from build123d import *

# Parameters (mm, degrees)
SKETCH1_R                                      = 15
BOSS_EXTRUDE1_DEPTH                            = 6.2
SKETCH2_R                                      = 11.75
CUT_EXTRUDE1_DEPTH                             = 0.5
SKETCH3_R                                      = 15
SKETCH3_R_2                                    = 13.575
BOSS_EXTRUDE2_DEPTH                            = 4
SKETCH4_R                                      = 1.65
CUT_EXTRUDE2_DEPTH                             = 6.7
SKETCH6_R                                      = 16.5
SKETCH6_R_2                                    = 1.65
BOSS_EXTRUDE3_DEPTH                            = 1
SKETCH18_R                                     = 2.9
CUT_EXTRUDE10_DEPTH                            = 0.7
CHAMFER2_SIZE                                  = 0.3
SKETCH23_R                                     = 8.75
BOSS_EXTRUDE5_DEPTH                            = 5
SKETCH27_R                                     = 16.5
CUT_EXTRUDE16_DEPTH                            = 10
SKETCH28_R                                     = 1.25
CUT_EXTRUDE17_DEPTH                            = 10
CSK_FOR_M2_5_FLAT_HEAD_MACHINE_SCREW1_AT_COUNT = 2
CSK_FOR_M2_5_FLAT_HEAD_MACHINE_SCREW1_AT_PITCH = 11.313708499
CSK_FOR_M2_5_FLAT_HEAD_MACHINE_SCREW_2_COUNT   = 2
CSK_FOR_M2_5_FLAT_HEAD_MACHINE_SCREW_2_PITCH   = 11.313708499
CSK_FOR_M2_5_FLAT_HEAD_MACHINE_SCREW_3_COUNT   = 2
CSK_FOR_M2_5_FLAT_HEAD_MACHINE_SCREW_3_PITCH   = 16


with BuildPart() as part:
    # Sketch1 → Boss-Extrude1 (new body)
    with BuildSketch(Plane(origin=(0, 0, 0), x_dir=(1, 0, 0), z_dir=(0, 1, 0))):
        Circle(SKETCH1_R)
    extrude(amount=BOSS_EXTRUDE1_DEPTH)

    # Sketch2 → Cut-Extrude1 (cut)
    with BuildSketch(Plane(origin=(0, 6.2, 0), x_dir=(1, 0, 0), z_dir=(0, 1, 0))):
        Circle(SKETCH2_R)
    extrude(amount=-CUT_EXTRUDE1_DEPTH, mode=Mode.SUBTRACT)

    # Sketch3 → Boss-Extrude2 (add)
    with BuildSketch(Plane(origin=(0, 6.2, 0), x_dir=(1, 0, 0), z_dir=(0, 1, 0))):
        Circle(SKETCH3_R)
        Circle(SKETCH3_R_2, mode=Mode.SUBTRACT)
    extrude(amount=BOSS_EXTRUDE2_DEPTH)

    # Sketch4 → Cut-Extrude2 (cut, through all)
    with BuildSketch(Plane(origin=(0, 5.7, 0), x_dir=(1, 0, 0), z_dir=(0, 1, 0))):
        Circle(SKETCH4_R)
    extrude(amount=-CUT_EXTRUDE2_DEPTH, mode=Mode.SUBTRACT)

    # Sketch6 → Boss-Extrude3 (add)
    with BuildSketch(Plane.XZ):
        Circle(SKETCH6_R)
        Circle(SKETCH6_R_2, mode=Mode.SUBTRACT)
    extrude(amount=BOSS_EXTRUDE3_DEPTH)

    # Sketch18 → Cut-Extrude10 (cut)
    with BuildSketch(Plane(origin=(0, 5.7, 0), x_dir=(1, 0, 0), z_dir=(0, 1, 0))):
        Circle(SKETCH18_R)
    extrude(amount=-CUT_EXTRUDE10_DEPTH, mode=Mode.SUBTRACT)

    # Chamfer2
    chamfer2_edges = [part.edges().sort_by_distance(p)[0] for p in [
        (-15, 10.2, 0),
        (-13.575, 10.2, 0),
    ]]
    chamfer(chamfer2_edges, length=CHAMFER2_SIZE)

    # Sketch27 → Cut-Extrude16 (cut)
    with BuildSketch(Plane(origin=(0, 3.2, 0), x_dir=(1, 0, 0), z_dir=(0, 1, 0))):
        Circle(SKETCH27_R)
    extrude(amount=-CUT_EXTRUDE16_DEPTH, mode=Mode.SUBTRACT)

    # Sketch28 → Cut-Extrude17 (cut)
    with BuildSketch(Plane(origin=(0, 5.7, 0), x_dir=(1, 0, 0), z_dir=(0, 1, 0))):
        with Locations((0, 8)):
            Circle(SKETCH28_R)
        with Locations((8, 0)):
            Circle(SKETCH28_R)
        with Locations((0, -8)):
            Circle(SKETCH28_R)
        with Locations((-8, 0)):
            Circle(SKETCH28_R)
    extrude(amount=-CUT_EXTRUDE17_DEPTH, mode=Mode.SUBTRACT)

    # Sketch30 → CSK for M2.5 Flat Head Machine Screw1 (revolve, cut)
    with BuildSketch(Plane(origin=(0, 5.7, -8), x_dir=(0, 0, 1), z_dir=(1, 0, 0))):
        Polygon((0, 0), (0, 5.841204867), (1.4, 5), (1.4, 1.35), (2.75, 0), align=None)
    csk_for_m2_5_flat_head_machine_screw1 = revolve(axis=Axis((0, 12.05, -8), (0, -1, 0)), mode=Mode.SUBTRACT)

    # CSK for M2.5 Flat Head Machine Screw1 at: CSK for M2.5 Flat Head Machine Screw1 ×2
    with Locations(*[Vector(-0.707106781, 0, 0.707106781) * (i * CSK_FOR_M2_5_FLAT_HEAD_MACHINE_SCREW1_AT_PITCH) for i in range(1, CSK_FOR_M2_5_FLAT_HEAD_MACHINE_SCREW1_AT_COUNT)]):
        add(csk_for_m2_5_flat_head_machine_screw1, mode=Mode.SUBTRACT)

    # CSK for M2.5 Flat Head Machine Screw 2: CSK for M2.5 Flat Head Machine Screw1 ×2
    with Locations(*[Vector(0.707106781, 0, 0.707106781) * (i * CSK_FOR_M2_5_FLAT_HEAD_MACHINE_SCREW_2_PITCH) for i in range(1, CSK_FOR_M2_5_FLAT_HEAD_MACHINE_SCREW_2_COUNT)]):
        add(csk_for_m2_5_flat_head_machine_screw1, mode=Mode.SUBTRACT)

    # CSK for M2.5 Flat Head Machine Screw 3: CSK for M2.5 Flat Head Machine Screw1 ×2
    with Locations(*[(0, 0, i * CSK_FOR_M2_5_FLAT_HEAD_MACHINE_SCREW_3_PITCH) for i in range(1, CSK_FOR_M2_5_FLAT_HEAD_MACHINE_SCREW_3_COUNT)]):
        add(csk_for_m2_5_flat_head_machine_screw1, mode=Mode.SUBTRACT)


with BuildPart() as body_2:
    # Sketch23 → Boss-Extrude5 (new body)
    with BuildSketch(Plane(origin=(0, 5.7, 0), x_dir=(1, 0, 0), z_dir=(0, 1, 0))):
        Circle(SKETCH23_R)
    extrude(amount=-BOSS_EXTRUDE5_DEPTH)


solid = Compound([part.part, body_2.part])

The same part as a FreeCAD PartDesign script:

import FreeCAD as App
import Part
import Sketcher

V = App.Vector
Q = App.Units.Quantity


def edges_at(feature, points):
    """Names of the edges that pass closest to the given points."""
    edges = feature.Shape.Edges
    near = lambda p: min(range(len(edges)), key=lambda i: edges[i].distToShape(Part.Vertex(*p))[0])
    return sorted({f"Edge{near(p) + 1}" for p in points})


def add_polygon(sketch, points):
    """Adds a closed chain of lines whose ends are joined by coincident constraints."""
    first, n = sketch.GeometryCount, len(points)
    for a, b in zip(points, points[1:] + points[:1]):
        sketch.addGeometry(Part.LineSegment(App.Vector(*a, 0), App.Vector(*b, 0)), False)
    for i in range(n):
        sketch.addConstraint(Sketcher.Constraint("Coincident", first + i, 2, first + (i + 1) % n, 1))

doc = App.newDocument("Part")
body = doc.addObject("PartDesign::Body", "Body")

# Sketch on XZ plane
sketch1 = body.newObject("Sketcher::SketchObject", "Sketch")
sketch1.AttachmentSupport = (doc.getObject("XZ_Plane"), [""])
sketch1.MapMode = "FlatFace"
sketch1.addGeometry(Part.Circle(V(0, 0, 0), V(0, 0, 1), 15), False)
sketch1.addConstraint(Sketcher.Constraint("Coincident", 0, 3, -1, 1))
sketch1.addConstraint(Sketcher.Constraint("Diameter", 0, 30.0))
pad1 = body.newObject("PartDesign::Pad", "Pad")
pad1.Profile = sketch1
pad1.Length = 6.2
pad1.Reversed = True

# Sketch on XZ plane
sketch2 = body.newObject("Sketcher::SketchObject", "Sketch001")
sketch2.AttachmentSupport = (doc.getObject("XZ_Plane"), [""])
sketch2.MapMode = "FlatFace"
sketch2.AttachmentOffset = App.Placement(V(0, 0, -6.2), App.Rotation())
sketch2.addGeometry(Part.Circle(V(0, 0, 0), V(0, 0, 1), 11.75), False)
sketch2.addConstraint(Sketcher.Constraint("Coincident", 0, 3, -1, 1))
sketch2.addConstraint(Sketcher.Constraint("Diameter", 0, 23.5))
pocket1 = body.newObject("PartDesign::Pocket", "Pocket")
pocket1.Profile = sketch2
pocket1.Length = 0.5
pocket1.Reversed = True

# Sketch on XZ plane
sketch3 = body.newObject("Sketcher::SketchObject", "Sketch002")
sketch3.AttachmentSupport = (doc.getObject("XZ_Plane"), [""])
sketch3.MapMode = "FlatFace"
sketch3.AttachmentOffset = App.Placement(V(0, 0, -6.2), App.Rotation())
sketch3.addGeometry(Part.Circle(V(0, 0, 0), V(0, 0, 1), 15), False)
sketch3.addGeometry(Part.Circle(V(0, 0, 0), V(0, 0, 1), 13.575), False)
sketch3.addConstraint(Sketcher.Constraint("Coincident", 0, 3, -1, 1))
sketch3.addConstraint(Sketcher.Constraint("Coincident", 1, 3, -1, 1))
sketch3.addConstraint(Sketcher.Constraint("Diameter", 0, 30.0))
sketch3.addConstraint(Sketcher.Constraint("Diameter", 1, 27.15))
pad2 = body.newObject("PartDesign::Pad", "Pad001")
pad2.Profile = sketch3
pad2.Length = 4
pad2.Reversed = True

# Sketch on XZ plane
sketch4 = body.newObject("Sketcher::SketchObject", "Sketch003")
sketch4.AttachmentSupport = (doc.getObject("XZ_Plane"), [""])
sketch4.MapMode = "FlatFace"
sketch4.AttachmentOffset = App.Placement(V(0, 0, -5.7), App.Rotation())
sketch4.addGeometry(Part.Circle(V(0, 0, 0), V(0, 0, 1), 1.65), False)
sketch4.addConstraint(Sketcher.Constraint("Coincident", 0, 3, -1, 1))
sketch4.addConstraint(Sketcher.Constraint("Diameter", 0, 3.3))
pocket2 = body.newObject("PartDesign::Pocket", "Pocket001")
pocket2.Profile = sketch4
pocket2.Type = "ThroughAll"
pocket2.Reversed = True

# Sketch on XZ plane
sketch5 = body.newObject("Sketcher::SketchObject", "Sketch004")
sketch5.AttachmentSupport = (doc.getObject("XZ_Plane"), [""])
sketch5.MapMode = "FlatFace"
sketch5.addGeometry(Part.Circle(V(0, 0, 0), V(0, 0, 1), 16.5), False)
sketch5.addGeometry(Part.Circle(V(0, 0, 0), V(0, 0, 1), 1.65), False)
sketch5.addConstraint(Sketcher.Constraint("Coincident", 0, 3, -1, 1))
sketch5.addConstraint(Sketcher.Constraint("Coincident", 1, 3, -1, 1))
sketch5.addConstraint(Sketcher.Constraint("Diameter", 0, 33.0))
sketch5.addConstraint(Sketcher.Constraint("Diameter", 1, 3.3))
pad3 = body.newObject("PartDesign::Pad", "Pad002")
pad3.Profile = sketch5
pad3.Length = 1

# Sketch on XZ plane
sketch6 = body.newObject("Sketcher::SketchObject", "Sketch005")
sketch6.AttachmentSupport = (doc.getObject("XZ_Plane"), [""])
sketch6.MapMode = "FlatFace"
sketch6.AttachmentOffset = App.Placement(V(0, 0, -5.7), App.Rotation())
sketch6.addGeometry(Part.Circle(V(0, 0, 0), V(0, 0, 1), 2.9), False)
sketch6.addConstraint(Sketcher.Constraint("Coincident", 0, 3, -1, 1))
sketch6.addConstraint(Sketcher.Constraint("Diameter", 0, 5.8))
pocket3 = body.newObject("PartDesign::Pocket", "Pocket002")
pocket3.Profile = sketch6
pocket3.Length = 0.7
pocket3.Reversed = True
doc.recompute()

chamfer = body.newObject("PartDesign::Chamfer", "Chamfer")
chamfer.Base = (pocket3, edges_at(pocket3, [(-15, 10.2, 0), (-13.575, 10.2, 0)]))
chamfer.Size = 0.3

# Sketch on XZ plane
sketch7 = body.newObject("Sketcher::SketchObject", "Sketch006")
sketch7.AttachmentSupport = (doc.getObject("XZ_Plane"), [""])
sketch7.MapMode = "FlatFace"
sketch7.AttachmentOffset = App.Placement(V(0, 0, -3.2), App.Rotation())
sketch7.addGeometry(Part.Circle(V(0, 0, 0), V(0, 0, 1), 16.5), False)
sketch7.addConstraint(Sketcher.Constraint("Coincident", 0, 3, -1, 1))
sketch7.addConstraint(Sketcher.Constraint("Diameter", 0, 33.0))
pocket4 = body.newObject("PartDesign::Pocket", "Pocket003")
pocket4.Profile = sketch7
pocket4.Length = 10
pocket4.Reversed = True

# Sketch on XZ plane
sketch8 = body.newObject("Sketcher::SketchObject", "Sketch007")
sketch8.AttachmentSupport = (doc.getObject("XZ_Plane"), [""])
sketch8.MapMode = "FlatFace"
sketch8.AttachmentOffset = App.Placement(V(0, 0, -5.7), App.Rotation())
sketch8.addGeometry(Part.Circle(V(0, -8, 0), V(0, 0, 1), 1.25), False)
sketch8.addGeometry(Part.Circle(V(8, 0, 0), V(0, 0, 1), 1.25), False)
sketch8.addGeometry(Part.Circle(V(0, 8, 0), V(0, 0, 1), 1.25), False)
sketch8.addGeometry(Part.Circle(V(-8, 0, 0), V(0, 0, 1), 1.25), False)
sketch8.addConstraint(Sketcher.Constraint("Equal", 0, 1))
sketch8.addConstraint(Sketcher.Constraint("Equal", 1, 2))
sketch8.addConstraint(Sketcher.Constraint("Equal", 2, 3))
sketch8.addConstraint(Sketcher.Constraint("Symmetric", 0, 3, 2, 3, -1, 1))
sketch8.addConstraint(Sketcher.Constraint("Symmetric", 1, 3, 3, 3, -1, 1))
sketch8.addConstraint(Sketcher.Constraint("PointOnObject", 0, 3, -2))
sketch8.addConstraint(Sketcher.Constraint("PointOnObject", 1, 3, -1))
sketch8.addConstraint(Sketcher.Constraint("Diameter", 0, 2.5))
sketch8.addConstraint(Sketcher.Constraint("DistanceY", 0, 3, -1, 1, 8.0))
sketch8.addConstraint(Sketcher.Constraint("DistanceX", -1, 1, 1, 3, 8.0))
pocket5 = body.newObject("PartDesign::Pocket", "Pocket004")
pocket5.Profile = sketch8
pocket5.Length = 10
pocket5.Reversed = True

# Sketch on YZ plane
sketch9 = body.newObject("Sketcher::SketchObject", "Sketch008")
sketch9.AttachmentSupport = (doc.getObject("YZ_Plane"), [""])
sketch9.MapMode = "FlatFace"
add_polygon(sketch9, [(-0.141205, -8), (5.7, -8), (5.7, -5.25), (4.35, -6.6), (0.7, -6.6)])  # lines 0-4
sketch9.addGeometry(Part.LineSegment(V(5.7, -8, 0), V(-0.141205, -8, 0)), True)  # axis
sketch9.addConstraint(Sketcher.Constraint("Horizontal", 0))
sketch9.addConstraint(Sketcher.Constraint("Vertical", 1))
sketch9.addConstraint(Sketcher.Constraint("Horizontal", 3))
sketch9.addConstraint(Sketcher.Constraint("Horizontal", 5))
sketch9.addConstraint(Sketcher.Constraint("Coincident", 5, 1, 0, 2))
sketch9.addConstraint(Sketcher.Constraint("Equal", 0, 5))
sketch9.addConstraint(Sketcher.Constraint("Angle", 2, Q("-135 deg")))
sketch9.addConstraint(Sketcher.Constraint("Angle", 4, Q("-121 deg")))
sketch9.addConstraint(Sketcher.Constraint("DistanceY", 0, 2, -1, 1, 8.0))
sketch9.addConstraint(Sketcher.Constraint("DistanceX", 3, 2, 1, 2, 5.0))
sketch9.addConstraint(Sketcher.Constraint("DistanceX", 3, 2, 3, 1, 3.65))
sketch9.addConstraint(Sketcher.Constraint("DistanceY", 1, 1, 1, 2, 2.75))
sketch9.addConstraint(Sketcher.Constraint("DistanceX", -1, 1, 0, 2, 5.7))
groove = body.newObject("PartDesign::Groove", "Groove")
groove.Profile = sketch9
groove.ReferenceAxis = (sketch9, ["Axis0"])
groove.Angle = 360
doc.recompute()

datumline = body.newObject("PartDesign::Line", "DatumLine")
datumline.Placement = App.Placement(V(0, 0, 0), App.Rotation(V(0, 0, 1), V(-0.707106781, 0, 0.707106781)))
linearpattern = body.newObject("PartDesign::LinearPattern", "LinearPattern")
linearpattern.Originals = [groove]
linearpattern.Direction = (datumline, [""])
linearpattern.Mode = "offset"
linearpattern.Offset = 11.313708
linearpattern.Occurrences = 2
body.Tip = linearpattern
doc.recompute()

datumline2 = body.newObject("PartDesign::Line", "DatumLine001")
datumline2.Placement = App.Placement(V(0, 0, 0), App.Rotation(V(0, 0, 1), V(0.707106781, 0, 0.707106781)))
linearpattern2 = body.newObject("PartDesign::LinearPattern", "LinearPattern001")
linearpattern2.Originals = [groove]
linearpattern2.Direction = (datumline2, [""])
linearpattern2.Mode = "offset"
linearpattern2.Offset = 11.313708
linearpattern2.Occurrences = 2
body.Tip = linearpattern2
doc.recompute()

linearpattern3 = body.newObject("PartDesign::LinearPattern", "LinearPattern002")
linearpattern3.Originals = [groove]
linearpattern3.Direction = (doc.getObject("Z_Axis"), [""])
linearpattern3.Mode = "offset"
linearpattern3.Offset = 16
linearpattern3.Occurrences = 2
body.Tip = linearpattern3
body2 = doc.addObject("PartDesign::Body", "Body001")

# Sketch on XZ plane
sketch10 = body2.newObject("Sketcher::SketchObject", "Sketch009")
sketch10.AttachmentSupport = (doc.getObject("XZ_Plane001"), [""])
sketch10.MapMode = "FlatFace"
sketch10.AttachmentOffset = App.Placement(V(0, 0, -5.7), App.Rotation())
sketch10.addGeometry(Part.Circle(V(0, 0, 0), V(0, 0, 1), 8.75), False)
sketch10.addConstraint(Sketcher.Constraint("Coincident", 0, 3, -1, 1))
sketch10.addConstraint(Sketcher.Constraint("Diameter", 0, 17.5))
pad4 = body2.newObject("PartDesign::Pad", "Pad003")
pad4.Profile = sketch10
pad4.Length = 5

doc.recompute()
